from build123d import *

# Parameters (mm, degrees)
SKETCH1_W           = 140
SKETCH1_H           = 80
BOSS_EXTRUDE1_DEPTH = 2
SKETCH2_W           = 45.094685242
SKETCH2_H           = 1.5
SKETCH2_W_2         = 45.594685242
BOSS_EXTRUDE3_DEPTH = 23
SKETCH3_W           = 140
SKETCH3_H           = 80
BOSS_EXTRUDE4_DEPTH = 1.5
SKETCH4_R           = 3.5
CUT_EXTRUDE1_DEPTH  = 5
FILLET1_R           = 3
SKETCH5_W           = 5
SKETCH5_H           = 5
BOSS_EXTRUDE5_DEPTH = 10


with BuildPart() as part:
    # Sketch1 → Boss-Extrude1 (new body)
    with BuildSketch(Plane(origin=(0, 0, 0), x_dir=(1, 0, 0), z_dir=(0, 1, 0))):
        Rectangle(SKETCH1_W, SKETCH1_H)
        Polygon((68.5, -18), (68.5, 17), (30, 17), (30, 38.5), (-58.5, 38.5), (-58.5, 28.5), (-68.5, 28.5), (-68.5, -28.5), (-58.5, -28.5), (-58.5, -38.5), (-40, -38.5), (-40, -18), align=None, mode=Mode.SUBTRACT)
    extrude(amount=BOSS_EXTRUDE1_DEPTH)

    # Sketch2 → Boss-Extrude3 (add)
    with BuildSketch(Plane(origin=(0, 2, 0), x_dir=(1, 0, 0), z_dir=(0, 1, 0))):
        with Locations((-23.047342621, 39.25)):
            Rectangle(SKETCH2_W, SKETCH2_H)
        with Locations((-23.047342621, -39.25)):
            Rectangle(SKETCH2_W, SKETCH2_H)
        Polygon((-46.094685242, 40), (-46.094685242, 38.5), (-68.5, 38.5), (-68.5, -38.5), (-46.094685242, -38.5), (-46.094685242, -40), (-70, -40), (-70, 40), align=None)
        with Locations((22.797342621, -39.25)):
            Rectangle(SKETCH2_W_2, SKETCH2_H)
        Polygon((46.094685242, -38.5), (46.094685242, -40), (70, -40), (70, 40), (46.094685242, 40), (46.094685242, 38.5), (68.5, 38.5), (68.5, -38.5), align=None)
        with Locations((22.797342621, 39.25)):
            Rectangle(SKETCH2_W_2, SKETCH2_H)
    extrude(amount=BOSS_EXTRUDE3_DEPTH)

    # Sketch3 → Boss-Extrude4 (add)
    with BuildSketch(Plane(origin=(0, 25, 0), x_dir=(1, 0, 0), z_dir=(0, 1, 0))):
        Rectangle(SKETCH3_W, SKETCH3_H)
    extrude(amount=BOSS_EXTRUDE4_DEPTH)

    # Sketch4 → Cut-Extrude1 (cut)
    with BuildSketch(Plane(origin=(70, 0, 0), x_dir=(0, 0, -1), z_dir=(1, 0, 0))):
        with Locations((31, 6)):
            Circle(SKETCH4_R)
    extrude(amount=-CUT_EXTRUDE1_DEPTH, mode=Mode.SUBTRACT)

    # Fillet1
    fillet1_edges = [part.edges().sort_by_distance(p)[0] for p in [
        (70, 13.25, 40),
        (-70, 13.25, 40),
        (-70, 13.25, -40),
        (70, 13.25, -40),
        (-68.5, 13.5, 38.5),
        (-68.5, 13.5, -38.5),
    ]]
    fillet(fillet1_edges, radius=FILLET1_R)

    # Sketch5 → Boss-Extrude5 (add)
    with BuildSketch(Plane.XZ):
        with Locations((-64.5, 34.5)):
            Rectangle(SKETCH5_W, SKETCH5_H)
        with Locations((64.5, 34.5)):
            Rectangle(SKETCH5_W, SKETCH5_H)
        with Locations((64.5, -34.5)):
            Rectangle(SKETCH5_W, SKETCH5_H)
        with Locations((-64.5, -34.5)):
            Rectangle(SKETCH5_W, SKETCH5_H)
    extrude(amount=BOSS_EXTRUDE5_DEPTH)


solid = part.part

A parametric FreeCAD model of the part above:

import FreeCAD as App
import Part
import Sketcher


def edges_at(feature, points):
    """Names of the edges that pass closest to the given points."""
    edges = feature.Shape.Edges
    near = lambda p: min(range(len(edges)), key=lambda i: edges[i].distToShape(Part.Vertex(*p))[0])
    return sorted({f"Edge{near(p) + 1}" for p in points})

doc = App.newDocument("Part")
body = doc.addObject("PartDesign::Body", "Body")

# Sketch on XZ plane
sketch1 = body.newObject("Sketcher::SketchObject", "Sketch")
sketch1.AttachmentSupport = (doc.getObject("XZ_Plane"), [""])
sketch1.MapMode = "FlatFace"
sketch1.addGeometry([
    Part.LineSegment(App.Vector(-70, -40, 0), App.Vector(-70, 40, 0)),  # 0
    Part.LineSegment(App.Vector(-70, 40, 0), App.Vector(70, 40, 0)),  # 1
    Part.LineSegment(App.Vector(70, 40, 0), App.Vector(70, -40, 0)),  # 2
    Part.LineSegment(App.Vector(70, -40, 0), App.Vector(-70, -40, 0)),  # 3
    Part.LineSegment(App.Vector(68, -17, 0), App.Vector(68, 18, 0)),  # 4
    Part.LineSegment(App.Vector(68, 18, 0), App.Vector(-40, 18, 0)),  # 5
    Part.LineSegment(App.Vector(-40, 18, 0), App.Vector(-40, 38, 0)),  # 6
    Part.LineSegment(App.Vector(-40, 38, 0), App.Vector(-58, 38, 0)),  # 7
    Part.LineSegment(App.Vector(-58, 38, 0), App.Vector(-58, 28, 0)),  # 8
    Part.LineSegment(App.Vector(-58, 28, 0), App.Vector(-68, 28, 0)),  # 9
    Part.LineSegment(App.Vector(-68, 28, 0), App.Vector(-68, -28, 0)),  # 10
    Part.LineSegment(App.Vector(-68, -28, 0), App.Vector(-58, -28, 0)),  # 11
    Part.LineSegment(App.Vector(-58, -28, 0), App.Vector(-58, -38, 0)),  # 12
    Part.LineSegment(App.Vector(-58, -38, 0), App.Vector(30, -38, 0)),  # 13
    Part.LineSegment(App.Vector(30, -38, 0), App.Vector(30, -17, 0)),  # 14
    Part.LineSegment(App.Vector(30, -17, 0), App.Vector(68, -17, 0)),  # 15
], False)
sketch1.addConstraint([
    Sketcher.Constraint("Coincident", 0, 2, 1, 1),
    Sketcher.Constraint("Coincident", 1, 2, 2, 1),
    Sketcher.Constraint("Coincident", 2, 2, 3, 1),
    Sketcher.Constraint("Coincident", 3, 2, 0, 1),
    Sketcher.Constraint("Coincident", 4, 2, 5, 1),
    Sketcher.Constraint("Coincident", 5, 2, 6, 1),
    Sketcher.Constraint("Coincident", 6, 2, 7, 1),
    Sketcher.Constraint("Coincident", 7, 2, 8, 1),
    Sketcher.Constraint("Coincident", 8, 2, 9, 1),
    Sketcher.Constraint("Coincident", 9, 2, 10, 1),
    Sketcher.Constraint("Coincident", 10, 2, 11, 1),
    Sketcher.Constraint("Coincident", 11, 2, 12, 1),
    Sketcher.Constraint("Coincident", 12, 2, 13, 1),
    Sketcher.Constraint("Coincident", 13, 2, 14, 1),
    Sketcher.Constraint("Coincident", 14, 2, 15, 1),
    Sketcher.Constraint("Coincident", 15, 2, 4, 1),
    Sketcher.Constraint("Vertical", 0),
    Sketcher.Constraint("Horizontal", 1),
    Sketcher.Constraint("Vertical", 2),
    Sketcher.Constraint("Horizontal", 3),
    Sketcher.Constraint("Vertical", 4),
    Sketcher.Constraint("Horizontal", 5),
    Sketcher.Constraint("Vertical", 6),
    Sketcher.Constraint("Horizontal", 7),
    Sketcher.Constraint("Vertical", 8),
    Sketcher.Constraint("Horizontal", 9),
    Sketcher.Constraint("Vertical", 10),
    Sketcher.Constraint("Horizontal", 11),
    Sketcher.Constraint("Vertical", 12),
    Sketcher.Constraint("Horizontal", 13),
    Sketcher.Constraint("Vertical", 14),
    Sketcher.Constraint("Horizontal", 15),
    Sketcher.Constraint("Symmetric", 0, 2, 2, 2, -1, 1),
    Sketcher.Constraint("Symmetric", 8, 2, 11, 2, -1),
    Sketcher.Constraint("Equal", 11, 8),
    Sketcher.Constraint("Equal", 8, 12),
    Sketcher.Constraint("DistanceX", 1, 1, 1, 2, 140.0),
    Sketcher.Constraint("DistanceX", 9, 2, 9, 1, 10.0),
    Sketcher.Constraint("DistanceY", 0, 1, 0, 2, 80.0),
    Sketcher.Constraint("DistanceY", 4, 1, 4, 2, 35.0),
    Sketcher.Constraint("DistanceY", 10, 2, 10, 1, 57.0),
    Sketcher.Constraint("DistanceX", 5, 2, 5, 1, 108.5),
    Sketcher.Constraint("DistanceX", 7, 2, 7, 1, 18.5),
    Sketcher.Constraint("DistanceX", 13, 1, 13, 2, 88.5),
    Sketcher.Constraint("DistanceY", 6, 1, 6, 2, 20.5),
    Sketcher.Constraint("DistanceX", 5, 2, -1, 1, 40.0),
])
pad1 = body.newObject("PartDesign::Pad", "Pad")
pad1.Profile = sketch1
pad1.Length = 2
pad1.Reversed = True

# Sketch on XZ plane
sketch2 = body.newObject("Sketcher::SketchObject", "Sketch001")
sketch2.AttachmentSupport = (doc.getObject("XZ_Plane"), [""])
sketch2.MapMode = "FlatFace"
sketch2.AttachmentOffset = App.Placement(App.Vector(0, 0, -2), App.Rotation())
sketch2.addGeometry([
    Part.LineSegment(App.Vector(-45.6, -40, 0), App.Vector(-45.6, -38.5, 0)),  # 0
    Part.LineSegment(App.Vector(-45.6, -38.5, 0), App.Vector(-0.5, -38.5, 0)),  # 1
    Part.LineSegment(App.Vector(-0.5, -38.5, 0), App.Vector(-0.5, -40, 0)),  # 2
    Part.LineSegment(App.Vector(-0.5, -40, 0), App.Vector(-45.6, -40, 0)),  # 3
    Part.LineSegment(App.Vector(-45.6, 38.5, 0), App.Vector(-45.6, 40, 0)),  # 4
    Part.LineSegment(App.Vector(-45.6, 40, 0), App.Vector(-0.5, 40, 0)),  # 5
    Part.LineSegment(App.Vector(-0.5, 40, 0), App.Vector(-0.5, 38.5, 0)),  # 6
    Part.LineSegment(App.Vector(-0.5, 38.5, 0), App.Vector(-45.6, 38.5, 0)),  # 7
    Part.LineSegment(App.Vector(-46.1, -38.5, 0), App.Vector(-46.1, -40, 0)),  # 8
    Part.LineSegment(App.Vector(-46.1, -40, 0), App.Vector(-70, -40, 0)),  # 9
    Part.LineSegment(App.Vector(-70, -40, 0), App.Vector(-70, 40, 0)),  # 10
    Part.LineSegment(App.Vector(-70, 40, 0), App.Vector(-46.1, 40, 0)),  # 11
    Part.LineSegment(App.Vector(-46.1, 40, 0), App.Vector(-46.1, 38.5, 0)),  # 12
    Part.LineSegment(App.Vector(-46.1, 38.5, 0), App.Vector(-68.5, 38.5, 0)),  # 13
    Part.LineSegment(App.Vector(-68.5, 38.5, 0), App.Vector(-68.5, -38.5, 0)),  # 14
    Part.LineSegment(App.Vector(-68.5, -38.5, 0), App.Vector(-46.1, -38.5, 0)),  # 15
    Part.LineSegment(App.Vector(0, 38.5, 0), App.Vector(0, 40, 0)),  # 16
    Part.LineSegment(App.Vector(0, 40, 0), App.Vector(45.6, 40, 0)),  # 17
    Part.LineSegment(App.Vector(45.6, 40, 0), App.Vector(45.6, 38.5, 0)),  # 18
    Part.LineSegment(App.Vector(45.6, 38.5, 0), App.Vector(0, 38.5, 0)),  # 19
    Part.LineSegment(App.Vector(46.1, 38.5, 0), App.Vector(46.1, 40, 0)),  # 20
    Part.LineSegment(App.Vector(46.1, 40, 0), App.Vector(70, 40, 0)),  # 21
    Part.LineSegment(App.Vector(70, 40, 0), App.Vector(70, -40, 0)),  # 22
    Part.LineSegment(App.Vector(70, -40, 0), App.Vector(46.1, -40, 0)),  # 23
    Part.LineSegment(App.Vector(46.1, -40, 0), App.Vector(46.1, -38.5, 0)),  # 24
    Part.LineSegment(App.Vector(46.1, -38.5, 0), App.Vector(68.5, -38.5, 0)),  # 25
    Part.LineSegment(App.Vector(68.5, -38.5, 0), App.Vector(68.5, 38.5, 0)),  # 26
    Part.LineSegment(App.Vector(68.5, 38.5, 0), App.Vector(46.1, 38.5, 0)),  # 27
    Part.LineSegment(App.Vector(0, -40, 0), App.Vector(0, -38.5, 0)),  # 28
    Part.LineSegment(App.Vector(0, -38.5, 0), App.Vector(45.6, -38.5, 0)),  # 29
    Part.LineSegment(App.Vector(45.6, -38.5, 0), App.Vector(45.6, -40, 0)),  # 30
    Part.LineSegment(App.Vector(45.6, -40, 0), App.Vector(0, -40, 0)),  # 31
], False)
sketch2.addConstraint([
    Sketcher.Constraint("Coincident", 0, 2, 1, 1),
    Sketcher.Constraint("Coincident", 1, 2, 2, 1),
    Sketcher.Constraint("Coincident", 2, 2, 3, 1),
    Sketcher.Constraint("Coincident", 3, 2, 0, 1),
    Sketcher.Constraint("Coincident", 4, 2, 5, 1),
    Sketcher.Constraint("Coincident", 5, 2, 6, 1),
    Sketcher.Constraint("Coincident", 6, 2, 7, 1),
    Sketcher.Constraint("Coincident", 7, 2, 4, 1),
    Sketcher.Constraint("Coincident", 8, 2, 9, 1),
    Sketcher.Constraint("Coincident", 9, 2, 10, 1),
    Sketcher.Constraint("Coincident", 10, 2, 11, 1),
    Sketcher.Constraint("Coincident", 11, 2, 12, 1),
    Sketcher.Constraint("Coincident", 12, 2, 13, 1),
    Sketcher.Constraint("Coincident", 13, 2, 14, 1),
    Sketcher.Constraint("Coincident", 14, 2, 15, 1),
    Sketcher.Constraint("Coincident", 15, 2, 8, 1),
    Sketcher.Constraint("Coincident", 16, 2, 17, 1),
    Sketcher.Constraint("Coincident", 17, 2, 18, 1),
    Sketcher.Constraint("Coincident", 18, 2, 19, 1),
    Sketcher.Constraint("Coincident", 19, 2, 16, 1),
    Sketcher.Constraint("Coincident", 20, 2, 21, 1),
    Sketcher.Constraint("Coincident", 21, 2, 22, 1),
    Sketcher.Constraint("Coincident", 22, 2, 23, 1),
    Sketcher.Constraint("Coincident", 23, 2, 24, 1),
    Sketcher.Constraint("Coincident", 24, 2, 25, 1),
    Sketcher.Constraint("Coincident", 25, 2, 26, 1),
    Sketcher.Constraint("Coincident", 26, 2, 27, 1),
    Sketcher.Constraint("Coincident", 27, 2, 20, 1),
    Sketcher.Constraint("Coincident", 28, 2, 29, 1),
    Sketcher.Constraint("Coincident", 29, 2, 30, 1),
    Sketcher.Constraint("Coincident", 30, 2, 31, 1),
    Sketcher.Constraint("Coincident", 31, 2, 28, 1),
    Sketcher.Constraint("Vertical", 0),
    Sketcher.Constraint("Horizontal", 1),
    Sketcher.Constraint("Vertical", 2),
    Sketcher.Constraint("Horizontal", 3),
    Sketcher.Constraint("Vertical", 4),
    Sketcher.Constraint("Horizontal", 5),
    Sketcher.Constraint("Vertical", 6),
    Sketcher.Constraint("Horizontal", 7),
    Sketcher.Constraint("Vertical", 8),
    Sketcher.Constraint("Horizontal", 9),
    Sketcher.Constraint("Vertical", 10),
    Sketcher.Constraint("Horizontal", 11),
    Sketcher.Constraint("Vertical", 12),
    Sketcher.Constraint("Horizontal", 13),
    Sketcher.Constraint("Vertical", 14),
    Sketcher.Constraint("Horizontal", 15),
    Sketcher.Constraint("Vertical", 16),
    Sketcher.Constraint("Horizontal", 17),
    Sketcher.Constraint("Vertical", 18),
    Sketcher.Constraint("Horizontal", 19),
    Sketcher.Constraint("Vertical", 20),
    Sketcher.Constraint("Horizontal", 21),
    Sketcher.Constraint("Vertical", 22),
    Sketcher.Constraint("Horizontal", 23),
    Sketcher.Constraint("Vertical", 24),
    Sketcher.Constraint("Horizontal", 25),
    Sketcher.Constraint("Vertical", 26),
    Sketcher.Constraint("Horizontal", 27),
    Sketcher.Constraint("Vertical", 28),
    Sketcher.Constraint("Horizontal", 29),
    Sketcher.Constraint("Vertical", 30),
    Sketcher.Constraint("Horizontal", 31),
    Sketcher.Constraint("Symmetric", 3, 2, 17, 2, -1, 1),
    Sketcher.Constraint("Symmetric", 8, 2, 20, 2, -1, 1),
    Sketcher.Constraint("Symmetric", 10, 2, 22, 2, -1, 1),
    Sketcher.Constraint("Symmetric", 12, 2, 24, 2, -1, 1),
    Sketcher.Constraint("Symmetric", 14, 2, 26, 2, -1, 1),
    Sketcher.Constraint("Symmetric", 19, 2, 28, 2, -1, 1),
    Sketcher.Constraint("Symmetric", 7, 2, 29, 2, -1, 1),
    Sketcher.Constraint("Symmetric", 4, 2, 17, 2, -2),
    Sketcher.Constraint("Symmetric", 11, 2, 20, 2, -2),
    Sketcher.Constraint("Symmetric", 1, 2, 6, 2, -1),
    Sketcher.Constraint("Symmetric", 16, 2, 31, 2, -1),
    Sketcher.Constraint("Horizontal", 3, 2, 8, 2),
    Sketcher.Constraint("Horizontal", 7, 2, 12, 2),
    Sketcher.Constraint("Horizontal", 1, 2, 14, 2),
    Sketcher.Constraint("DistanceY", 10, 1, 10, 2, 80.0),
    Sketcher.Constraint("DistanceY", 14, 2, 14, 1, 77.0),
    Sketcher.Constraint("DistanceX", 9, 2, -1, 1, 70.0),
    Sketcher.Constraint("DistanceX", 14, 2, 1, 2, 68.0),
    Sketcher.Constraint("DistanceX", 1, 2, 25, 2, 69.0),
    Sketcher.Constraint("DistanceX", 8, 2, 3, 2, 0.5),
    Sketcher.Constraint("DistanceX", 1, 1, 1, 2, 45.094685),
])
pad2 = body.newObject("PartDesign::Pad", "Pad001")
pad2.Profile = sketch2
pad2.Length = 23
pad2.Reversed = True

# Sketch on XZ plane
sketch3 = body.newObject("Sketcher::SketchObject", "Sketch002")
sketch3.AttachmentSupport = (doc.getObject("XZ_Plane"), [""])
sketch3.MapMode = "FlatFace"
sketch3.AttachmentOffset = App.Placement(App.Vector(0, 0, -25), App.Rotation())
sketch3.addGeometry([
    Part.LineSegment(App.Vector(-70, -40, 0), App.Vector(-70, 40, 0)),
    Part.LineSegment(App.Vector(-70, 40, 0), App.Vector(70, 40, 0)),
    Part.LineSegment(App.Vector(70, 40, 0), App.Vector(70, -40, 0)),
    Part.LineSegment(App.Vector(70, -40, 0), App.Vector(-70, -40, 0)),
], False)
sketch3.addConstraint([
    Sketcher.Constraint("Coincident", 0, 2, 1, 1),
    Sketcher.Constraint("Coincident", 1, 2, 2, 1),
    Sketcher.Constraint("Coincident", 2, 2, 3, 1),
    Sketcher.Constraint("Coincident", 3, 2, 0, 1),
    Sketcher.Constraint("Vertical", 0),
    Sketcher.Constraint("Horizontal", 1),
    Sketcher.Constraint("Vertical", 2),
    Sketcher.Constraint("Horizontal", 3),
    Sketcher.Constraint("Symmetric", 0, 2, 2, 2, -1, 1),
    Sketcher.Constraint("DistanceX", 1, 1, 1, 2, 140.0),
    Sketcher.Constraint("DistanceY", 0, 1, 0, 2, 80.0),
])
pad3 = body.newObject("PartDesign::Pad", "Pad002")
pad3.Profile = sketch3
pad3.Length = 1.5
pad3.Reversed = True

# Sketch on YZ plane
sketch4 = body.newObject("Sketcher::SketchObject", "Sketch003")
sketch4.AttachmentSupport = (doc.getObject("YZ_Plane"), [""])
sketch4.MapMode = "FlatFace"
sketch4.AttachmentOffset = App.Placement(App.Vector(0, 0, 70), App.Rotation())
sketch4.addGeometry(Part.Circle(App.Vector(6, -31, 0), App.Vector(0, 0, 1), 3.5), False)
sketch4.addConstraint([
    Sketcher.Constraint("Diameter", 0, 7.0),
    Sketcher.Constraint("DistanceX", -1, 1, 0, 3, 6.0),
    Sketcher.Constraint("DistanceY", 0, 3, -1, 1, 31.0),
])
pocket1 = body.newObject("PartDesign::Pocket", "Pocket")
pocket1.Profile = sketch4
pocket1.Length = 5
doc.recompute()

fillet = body.newObject("PartDesign::Fillet", "Fillet")
fillet.Base = (pocket1, edges_at(pocket1, [
    (70, 13.25, 40),
    (-70, 13.25, 40),
    (-70, 13.25, -40),
    (70, 13.25, -40),
    (-68.5, 13.5, 38.5),
    (-68.5, 13.5, -38.5),
]))
fillet.Radius = 3

# Sketch on XZ plane
sketch5 = body.newObject("Sketcher::SketchObject", "Sketch004")
sketch5.AttachmentSupport = (doc.getObject("XZ_Plane"), [""])
sketch5.MapMode = "FlatFace"
sketch5.addGeometry([
    Part.LineSegment(App.Vector(-67, 37, 0), App.Vector(-67, 32, 0)),  # 0
    Part.LineSegment(App.Vector(-67, 32, 0), App.Vector(-62, 32, 0)),  # 1
    Part.LineSegment(App.Vector(-62, 32, 0), App.Vector(-62, 37, 0)),  # 2
    Part.LineSegment(App.Vector(-62, 37, 0), App.Vector(-67, 37, 0)),  # 3
    Part.LineSegment(App.Vector(62, 37, 0), App.Vector(62, 32, 0)),  # 4
    Part.LineSegment(App.Vector(62, 32, 0), App.Vector(67, 32, 0)),  # 5
    Part.LineSegment(App.Vector(67, 32, 0), App.Vector(67, 37, 0)),  # 6
    Part.LineSegment(App.Vector(67, 37, 0), App.Vector(62, 37, 0)),  # 7
    Part.LineSegment(App.Vector(62, -32, 0), App.Vector(62, -37, 0)),  # 8
    Part.LineSegment(App.Vector(62, -37, 0), App.Vector(67, -37, 0)),  # 9
    Part.LineSegment(App.Vector(67, -37, 0), App.Vector(67, -32, 0)),  # 10
    Part.LineSegment(App.Vector(67, -32, 0), App.Vector(62, -32, 0)),  # 11
    Part.LineSegment(App.Vector(-67, -32, 0), App.Vector(-67, -37, 0)),  # 12
    Part.LineSegment(App.Vector(-67, -37, 0), App.Vector(-62, -37, 0)),  # 13
    Part.LineSegment(App.Vector(-62, -37, 0), App.Vector(-62, -32, 0)),  # 14
    Part.LineSegment(App.Vector(-62, -32, 0), App.Vector(-67, -32, 0)),  # 15
], False)
sketch5.addConstraint([
    Sketcher.Constraint("Coincident", 0, 2, 1, 1),
    Sketcher.Constraint("Coincident", 1, 2, 2, 1),
    Sketcher.Constraint("Coincident", 2, 2, 3, 1),
    Sketcher.Constraint("Coincident", 3, 2, 0, 1),
    Sketcher.Constraint("Coincident", 4, 2, 5, 1),
    Sketcher.Constraint("Coincident", 5, 2, 6, 1),
    Sketcher.Constraint("Coincident", 6, 2, 7, 1),
    Sketcher.Constraint("Coincident", 7, 2, 4, 1),
    Sketcher.Constraint("Coincident", 8, 2, 9, 1),
    Sketcher.Constraint("Coincident", 9, 2, 10, 1),
    Sketcher.Constraint("Coincident", 10, 2, 11, 1),
    Sketcher.Constraint("Coincident", 11, 2, 8, 1),
    Sketcher.Constraint("Coincident", 12, 2, 13, 1),
    Sketcher.Constraint("Coincident", 13, 2, 14, 1),
    Sketcher.Constraint("Coincident", 14, 2, 15, 1),
    Sketcher.Constraint("Coincident", 15, 2, 12, 1),
    Sketcher.Constraint("Vertical", 0),
    Sketcher.Constraint("Horizontal", 1),
    Sketcher.Constraint("Vertical", 2),
    Sketcher.Constraint("Horizontal", 3),
    Sketcher.Constraint("Vertical", 4),
    Sketcher.Constraint("Horizontal", 5),
    Sketcher.Constraint("Vertical", 6),
    Sketcher.Constraint("Horizontal", 7),
    Sketcher.Constraint("Vertical", 8),
    Sketcher.Constraint("Horizontal", 9),
    Sketcher.Constraint("Vertical", 10),
    Sketcher.Constraint("Horizontal", 11),
    Sketcher.Constraint("Vertical", 12),
    Sketcher.Constraint("Horizontal", 13),
    Sketcher.Constraint("Vertical", 14),
    Sketcher.Constraint("Horizontal", 15),
    Sketcher.Constraint("Symmetric", 2, 2, 8, 2, -1, 1),
    Sketcher.Constraint("Symmetric", 0, 2, 10, 2, -1, 1),
    Sketcher.Constraint("Symmetric", 6, 2, 12, 2, -1, 1),
    Sketcher.Constraint("Symmetric", 4, 2, 14, 2, -1, 1),
    Sketcher.Constraint("Symmetric", 1, 2, 4, 2, -2),
    Sketcher.Constraint("Symmetric", 3, 2, 6, 2, -2),
    Sketcher.Constraint("Equal", 15, 0),
    Sketcher.Constraint("DistanceX", 1, 1, 1, 2, 5.0),
    Sketcher.Constraint("DistanceX", 0, 2, -1, 1, 67.0),
    Sketcher.Constraint("DistanceY", -1, 1, 0, 2, 32.0),
])
pad4 = body.newObject("PartDesign::Pad", "Pad003")
pad4.Profile = sketch5
pad4.Length = 10

doc.recompute()
